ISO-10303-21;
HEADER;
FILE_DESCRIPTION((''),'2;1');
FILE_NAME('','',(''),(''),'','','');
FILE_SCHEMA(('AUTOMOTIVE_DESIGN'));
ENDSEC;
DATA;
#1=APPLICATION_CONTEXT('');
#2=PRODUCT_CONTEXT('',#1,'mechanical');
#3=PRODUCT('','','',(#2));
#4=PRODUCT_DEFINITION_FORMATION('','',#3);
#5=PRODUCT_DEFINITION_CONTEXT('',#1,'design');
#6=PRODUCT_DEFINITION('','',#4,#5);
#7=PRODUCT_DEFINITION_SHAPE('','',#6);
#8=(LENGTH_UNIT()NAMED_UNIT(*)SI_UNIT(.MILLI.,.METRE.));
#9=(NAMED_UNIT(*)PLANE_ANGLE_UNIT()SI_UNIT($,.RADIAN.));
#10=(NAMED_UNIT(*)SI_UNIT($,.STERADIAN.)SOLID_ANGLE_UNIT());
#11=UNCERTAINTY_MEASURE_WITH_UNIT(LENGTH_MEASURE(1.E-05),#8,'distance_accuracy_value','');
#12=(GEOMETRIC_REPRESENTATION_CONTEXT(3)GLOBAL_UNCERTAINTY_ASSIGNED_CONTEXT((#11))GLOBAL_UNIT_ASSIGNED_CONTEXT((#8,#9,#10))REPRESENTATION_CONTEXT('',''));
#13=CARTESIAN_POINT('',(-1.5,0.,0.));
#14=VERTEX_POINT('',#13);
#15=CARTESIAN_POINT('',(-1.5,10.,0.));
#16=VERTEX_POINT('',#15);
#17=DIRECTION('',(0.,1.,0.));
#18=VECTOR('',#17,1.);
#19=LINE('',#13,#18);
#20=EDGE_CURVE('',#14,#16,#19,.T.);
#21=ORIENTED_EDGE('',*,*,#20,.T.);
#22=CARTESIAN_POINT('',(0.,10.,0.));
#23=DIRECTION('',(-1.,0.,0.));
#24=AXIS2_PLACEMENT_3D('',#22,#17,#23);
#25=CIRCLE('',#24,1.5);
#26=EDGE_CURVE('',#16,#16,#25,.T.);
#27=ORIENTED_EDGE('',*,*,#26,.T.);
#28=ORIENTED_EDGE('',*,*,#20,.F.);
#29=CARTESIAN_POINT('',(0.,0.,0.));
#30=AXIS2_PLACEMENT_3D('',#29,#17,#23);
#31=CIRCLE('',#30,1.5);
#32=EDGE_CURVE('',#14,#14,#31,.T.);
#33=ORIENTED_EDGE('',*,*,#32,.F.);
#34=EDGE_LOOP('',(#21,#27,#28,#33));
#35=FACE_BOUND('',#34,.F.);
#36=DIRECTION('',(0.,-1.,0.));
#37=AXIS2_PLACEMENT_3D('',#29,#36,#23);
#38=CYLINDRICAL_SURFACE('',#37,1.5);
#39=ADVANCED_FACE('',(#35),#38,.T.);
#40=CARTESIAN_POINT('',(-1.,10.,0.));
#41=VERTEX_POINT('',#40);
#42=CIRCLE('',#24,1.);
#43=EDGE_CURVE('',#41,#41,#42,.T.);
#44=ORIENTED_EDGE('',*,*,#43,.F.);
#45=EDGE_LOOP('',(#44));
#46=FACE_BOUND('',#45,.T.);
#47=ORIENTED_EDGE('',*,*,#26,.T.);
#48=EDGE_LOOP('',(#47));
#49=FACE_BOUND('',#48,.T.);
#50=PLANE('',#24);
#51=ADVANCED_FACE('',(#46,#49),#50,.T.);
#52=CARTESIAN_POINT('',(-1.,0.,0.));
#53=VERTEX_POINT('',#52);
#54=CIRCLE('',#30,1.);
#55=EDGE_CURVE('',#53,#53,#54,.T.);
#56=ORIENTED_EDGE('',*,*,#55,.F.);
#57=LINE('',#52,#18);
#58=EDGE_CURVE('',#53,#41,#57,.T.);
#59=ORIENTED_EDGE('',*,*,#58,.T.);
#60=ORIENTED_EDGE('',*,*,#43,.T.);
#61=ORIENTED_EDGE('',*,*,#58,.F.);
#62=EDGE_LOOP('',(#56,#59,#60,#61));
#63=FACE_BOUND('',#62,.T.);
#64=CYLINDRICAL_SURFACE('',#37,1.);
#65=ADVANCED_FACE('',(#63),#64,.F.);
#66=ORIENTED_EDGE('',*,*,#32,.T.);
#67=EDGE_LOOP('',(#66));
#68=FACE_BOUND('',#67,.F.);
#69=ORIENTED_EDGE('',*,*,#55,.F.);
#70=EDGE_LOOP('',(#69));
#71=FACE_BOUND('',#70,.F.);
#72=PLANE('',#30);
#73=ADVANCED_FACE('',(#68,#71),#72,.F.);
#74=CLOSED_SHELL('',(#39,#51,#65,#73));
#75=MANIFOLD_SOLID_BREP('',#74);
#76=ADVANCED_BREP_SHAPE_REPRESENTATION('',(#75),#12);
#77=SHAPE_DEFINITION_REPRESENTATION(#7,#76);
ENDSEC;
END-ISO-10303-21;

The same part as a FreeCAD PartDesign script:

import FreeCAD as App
import Part
import Sketcher

V = App.Vector
Q = App.Units.Quantity

doc = App.newDocument("Part")
body = doc.addObject("PartDesign::Body", "Body")

sketch1 = doc.addObject("Sketcher::SketchObject", "Sketch")
body.addObject(sketch1)
sketch1.AttachmentSupport = (doc.XZ_Plane, [""])
sketch1.MapMode = "FlatFace"
sketch1.addGeometry([
    Part.Circle(V(0, 0, 0), V(0, 0, 1), 1.5),
    Part.Circle(V(0, 0, 0), V(0, 0, 1), 1),
], False)
sketch1.addConstraint([
    Sketcher.Constraint("Coincident", 0, 3, -1, 1),
    Sketcher.Constraint("Coincident", 1, 3, -1, 1),
    Sketcher.Constraint("Diameter", 0, Q("3 mm")),
    Sketcher.Constraint("Diameter", 1, Q("2 mm")),
])
pad1 = doc.addObject("PartDesign::Pad", "Pad")
body.addObject(pad1)
pad1.Profile = sketch1
pad1.Length = 10
pad1.Reversed = True

doc.recompute()
